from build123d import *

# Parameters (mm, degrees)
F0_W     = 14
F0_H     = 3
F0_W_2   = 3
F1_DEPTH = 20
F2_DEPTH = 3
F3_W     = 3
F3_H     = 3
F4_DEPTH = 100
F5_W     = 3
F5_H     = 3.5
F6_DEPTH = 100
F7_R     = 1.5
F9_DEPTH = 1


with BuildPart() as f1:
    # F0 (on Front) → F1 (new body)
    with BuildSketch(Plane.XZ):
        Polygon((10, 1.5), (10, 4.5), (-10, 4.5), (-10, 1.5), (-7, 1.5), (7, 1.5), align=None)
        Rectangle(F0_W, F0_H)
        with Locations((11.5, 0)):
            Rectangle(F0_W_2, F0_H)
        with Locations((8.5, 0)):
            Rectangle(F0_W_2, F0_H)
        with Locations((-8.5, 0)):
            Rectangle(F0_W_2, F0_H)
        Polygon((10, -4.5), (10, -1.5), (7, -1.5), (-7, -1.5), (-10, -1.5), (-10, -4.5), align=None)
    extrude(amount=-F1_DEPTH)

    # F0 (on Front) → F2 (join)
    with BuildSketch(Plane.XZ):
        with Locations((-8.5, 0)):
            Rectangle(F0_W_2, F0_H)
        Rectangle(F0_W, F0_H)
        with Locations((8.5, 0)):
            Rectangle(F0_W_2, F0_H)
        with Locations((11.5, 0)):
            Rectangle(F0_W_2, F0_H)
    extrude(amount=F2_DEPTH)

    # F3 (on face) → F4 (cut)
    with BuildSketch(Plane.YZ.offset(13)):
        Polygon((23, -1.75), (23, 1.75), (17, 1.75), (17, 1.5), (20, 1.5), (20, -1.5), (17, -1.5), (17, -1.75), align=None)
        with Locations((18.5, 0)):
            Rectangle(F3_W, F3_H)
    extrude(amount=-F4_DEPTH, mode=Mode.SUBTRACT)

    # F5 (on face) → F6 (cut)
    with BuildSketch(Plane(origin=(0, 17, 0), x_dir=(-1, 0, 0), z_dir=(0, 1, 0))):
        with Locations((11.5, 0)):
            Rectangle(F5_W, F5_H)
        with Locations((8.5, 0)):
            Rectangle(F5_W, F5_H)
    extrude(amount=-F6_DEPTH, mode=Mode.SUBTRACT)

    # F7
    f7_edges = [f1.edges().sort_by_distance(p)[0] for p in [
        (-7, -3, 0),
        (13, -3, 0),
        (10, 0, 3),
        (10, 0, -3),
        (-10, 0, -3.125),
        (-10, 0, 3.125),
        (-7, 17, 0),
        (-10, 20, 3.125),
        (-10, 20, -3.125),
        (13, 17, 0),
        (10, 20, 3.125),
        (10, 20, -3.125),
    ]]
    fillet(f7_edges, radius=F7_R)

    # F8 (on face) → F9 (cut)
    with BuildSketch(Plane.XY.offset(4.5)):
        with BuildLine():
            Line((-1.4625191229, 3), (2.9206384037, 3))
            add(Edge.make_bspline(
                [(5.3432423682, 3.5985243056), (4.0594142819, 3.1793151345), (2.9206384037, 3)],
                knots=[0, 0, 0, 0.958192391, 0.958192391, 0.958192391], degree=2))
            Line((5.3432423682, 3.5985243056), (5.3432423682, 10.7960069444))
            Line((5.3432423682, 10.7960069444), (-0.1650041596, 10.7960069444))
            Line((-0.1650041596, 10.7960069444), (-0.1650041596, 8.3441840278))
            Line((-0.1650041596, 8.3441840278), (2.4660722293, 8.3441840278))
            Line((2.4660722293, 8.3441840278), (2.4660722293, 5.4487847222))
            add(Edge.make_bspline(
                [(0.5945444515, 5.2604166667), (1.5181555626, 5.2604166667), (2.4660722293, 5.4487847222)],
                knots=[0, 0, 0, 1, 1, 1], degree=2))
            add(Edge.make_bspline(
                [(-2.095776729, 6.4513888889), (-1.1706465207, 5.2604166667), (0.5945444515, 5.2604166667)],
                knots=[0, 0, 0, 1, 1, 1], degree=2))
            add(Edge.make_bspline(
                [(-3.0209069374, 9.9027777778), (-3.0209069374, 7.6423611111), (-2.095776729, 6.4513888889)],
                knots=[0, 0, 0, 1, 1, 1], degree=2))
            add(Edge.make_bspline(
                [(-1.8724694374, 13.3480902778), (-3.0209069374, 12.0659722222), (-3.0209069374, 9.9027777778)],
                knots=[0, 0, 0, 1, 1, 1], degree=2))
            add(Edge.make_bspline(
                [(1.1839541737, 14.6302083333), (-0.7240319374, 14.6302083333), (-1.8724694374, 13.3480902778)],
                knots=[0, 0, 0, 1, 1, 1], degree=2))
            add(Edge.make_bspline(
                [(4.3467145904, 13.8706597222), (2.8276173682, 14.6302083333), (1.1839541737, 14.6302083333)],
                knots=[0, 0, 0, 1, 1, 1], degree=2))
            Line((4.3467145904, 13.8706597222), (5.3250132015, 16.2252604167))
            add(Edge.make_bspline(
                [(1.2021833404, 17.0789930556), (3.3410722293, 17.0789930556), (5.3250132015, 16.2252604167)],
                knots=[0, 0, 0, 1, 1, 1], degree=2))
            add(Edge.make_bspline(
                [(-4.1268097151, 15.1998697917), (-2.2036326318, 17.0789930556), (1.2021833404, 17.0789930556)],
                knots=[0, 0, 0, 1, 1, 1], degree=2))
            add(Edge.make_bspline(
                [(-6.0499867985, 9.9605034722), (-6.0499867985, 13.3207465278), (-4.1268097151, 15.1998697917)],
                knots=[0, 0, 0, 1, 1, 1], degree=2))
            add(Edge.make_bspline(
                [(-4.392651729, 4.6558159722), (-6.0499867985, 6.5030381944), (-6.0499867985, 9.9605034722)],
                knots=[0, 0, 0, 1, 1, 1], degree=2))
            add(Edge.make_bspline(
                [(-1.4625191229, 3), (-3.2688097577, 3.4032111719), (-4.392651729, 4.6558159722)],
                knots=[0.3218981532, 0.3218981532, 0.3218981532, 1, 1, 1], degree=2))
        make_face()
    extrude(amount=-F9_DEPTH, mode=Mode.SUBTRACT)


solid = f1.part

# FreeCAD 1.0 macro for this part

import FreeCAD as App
import Part
import Sketcher


def edges_at(feature, points):
    """Names of the edges that pass closest to the given points."""
    edges = feature.Shape.Edges
    near = lambda p: min(range(len(edges)), key=lambda i: edges[i].distToShape(Part.Vertex(*p))[0])
    return sorted({f"Edge{near(p) + 1}" for p in points})


def add_polygon(sketch, points):
    """Adds a closed chain of lines whose ends are joined by coincident constraints."""
    first, n = sketch.GeometryCount, len(points)
    for a, b in zip(points, points[1:] + points[:1]):
        sketch.addGeometry(Part.LineSegment(App.Vector(*a, 0), App.Vector(*b, 0)), False)
    for i in range(n):
        sketch.addConstraint(Sketcher.Constraint("Coincident", first + i, 2, first + (i + 1) % n, 1))

doc = App.newDocument("Part")
params = doc.addObject("Spreadsheet::Sheet", "Params")
for row, (alias, value) in enumerate([
    ("sketch1_width", "20 mm"),
    ("sketch1_width2", "3 mm"),
    ("pad1_length", "20 mm"),
    ("sketch2_width", "23 mm"),
    ("sketch2_height", "3 mm"),
    ("pad2_length", "3 mm"),
    ("sketch3_width", "6 mm"),
    ("sketch3_height", "3.5 mm"),
    ("pocket1_length", "100 mm"),
    ("sketch4_width", "6 mm"),
    ("sketch4_height", "3.5 mm"),
    ("pocket2_length", "100 mm"),
    ("fillet_radius", "1.5 mm"),
    ("pocket3_length", "1 mm"),
], start=1):
    params.set(f"A{row}", alias)
    params.set(f"B{row}", "=" + value)
    params.setAlias(f"B{row}", alias)

body = doc.addObject("PartDesign::Body", "Body")

# Sketch on XZ plane
sketch1 = body.newObject("Sketcher::SketchObject", "Sketch")
sketch1.AttachmentSupport = (doc.getObject("XZ_Plane"), [""])
sketch1.MapMode = "FlatFace"
add_polygon(sketch1, [(10, 1.5), (10, 4.5), (-10, 4.5), (-10, -4.5), (10, -4.5), (10, -1.5), (13, -1.5), (13, 1.5)])  # lines 0-7
sketch1.addConstraint([
    Sketcher.Constraint("Vertical", 0),
    Sketcher.Constraint("Horizontal", 1),
    Sketcher.Constraint("Vertical", 2),
    Sketcher.Constraint("Horizontal", 3),
    Sketcher.Constraint("Vertical", 4),
    Sketcher.Constraint("Horizontal", 5),
    Sketcher.Constraint("Vertical", 6),
    Sketcher.Constraint("Horizontal", 7),
    Sketcher.Constraint("Symmetric", 0, 2, 2, 2, -1, 1),
    Sketcher.Constraint("Symmetric", 4, 2, 7, 2, -1),
    Sketcher.Constraint("Equal", 7, 0),
    Sketcher.Constraint("Equal", 4, 6),
    Sketcher.Constraint("DistanceX", 1, 2, 1, 1, 20.0),
    Sketcher.Constraint("DistanceX", 5, 1, 5, 2, 3.0),
])
sketch1.setExpression("Constraints[20]", "Params.sketch1_width")
sketch1.setExpression("Constraints[21]", "Params.sketch1_width2")
pad1 = body.newObject("PartDesign::Pad", "Pad")
pad1.Profile = sketch1
pad1.setExpression("Length", "Params.pad1_length")
pad1.Reversed = True

# Sketch on XZ plane
sketch2 = body.newObject("Sketcher::SketchObject", "Sketch001")
sketch2.AttachmentSupport = (doc.getObject("XZ_Plane"), [""])
sketch2.MapMode = "FlatFace"
add_polygon(sketch2, [(-10, 1.5), (-10, -1.5), (13, -1.5), (13, 1.5)])  # lines 0-3
sketch2.addConstraint([
    Sketcher.Constraint("Vertical", 0),
    Sketcher.Constraint("Horizontal", 1),
    Sketcher.Constraint("Vertical", 2),
    Sketcher.Constraint("Horizontal", 3),
    Sketcher.Constraint("DistanceX", 1, 1, 1, 2, 23.0),
    Sketcher.Constraint("DistanceY", 0, 2, 0, 1, 3.0),
    Sketcher.Constraint("DistanceX", 0, 2, -1, 1, 10.0),
    Sketcher.Constraint("DistanceY", 0, 2, -1, 1, 1.5),
])
sketch2.setExpression("Constraints[8]", "Params.sketch2_width")
sketch2.setExpression("Constraints[9]", "Params.sketch2_height")
pad2 = body.newObject("PartDesign::Pad", "Pad001")
pad2.Profile = sketch2
pad2.setExpression("Length", "Params.pad2_length")

# Sketch on YZ plane
sketch3 = body.newObject("Sketcher::SketchObject", "Sketch002")
sketch3.AttachmentSupport = (doc.getObject("YZ_Plane"), [""])
sketch3.MapMode = "FlatFace"
sketch3.AttachmentOffset = App.Placement(App.Vector(0, 0, 13), App.Rotation())
add_polygon(sketch3, [(23, -1.75), (23, 1.75), (17, 1.75), (17, -1.75)])  # lines 0-3
sketch3.addConstraint([
    Sketcher.Constraint("Vertical", 0),
    Sketcher.Constraint("Horizontal", 1),
    Sketcher.Constraint("Vertical", 2),
    Sketcher.Constraint("Horizontal", 3),
    Sketcher.Constraint("DistanceX", 1, 2, 1, 1, 6.0),
    Sketcher.Constraint("DistanceY", 0, 1, 0, 2, 3.5),
    Sketcher.Constraint("DistanceX", -1, 1, 0, 2, 23.0),
    Sketcher.Constraint("DistanceY", -1, 1, 0, 2, 1.75),
])
sketch3.setExpression("Constraints[8]", "Params.sketch3_width")
sketch3.setExpression("Constraints[9]", "Params.sketch3_height")
pocket1 = body.newObject("PartDesign::Pocket", "Pocket")
pocket1.Profile = sketch3
pocket1.setExpression("Length", "Params.pocket1_length")

# Sketch on XZ plane
sketch4 = body.newObject("Sketcher::SketchObject", "Sketch003")
sketch4.AttachmentSupport = (doc.getObject("XZ_Plane"), [""])
sketch4.MapMode = "FlatFace"
sketch4.AttachmentOffset = App.Placement(App.Vector(0, 0, -17), App.Rotation())
add_polygon(sketch4, [(-13, -1.75), (-13, 1.75), (-7, 1.75), (-7, -1.75)])  # lines 0-3
sketch4.addConstraint([
    Sketcher.Constraint("Vertical", 0),
    Sketcher.Constraint("Horizontal", 1),
    Sketcher.Constraint("Vertical", 2),
    Sketcher.Constraint("Horizontal", 3),
    Sketcher.Constraint("DistanceX", 1, 1, 1, 2, 6.0),
    Sketcher.Constraint("DistanceY", 0, 1, 0, 2, 3.5),
    Sketcher.Constraint("DistanceX", 0, 2, -1, 1, 13.0),
    Sketcher.Constraint("DistanceY", -1, 1, 0, 2, 1.75),
])
sketch4.setExpression("Constraints[8]", "Params.sketch4_width")
sketch4.setExpression("Constraints[9]", "Params.sketch4_height")
pocket2 = body.newObject("PartDesign::Pocket", "Pocket001")
pocket2.Profile = sketch4
pocket2.setExpression("Length", "Params.pocket2_length")
pocket2.Reversed = True
doc.recompute()

fillet = body.newObject("PartDesign::Fillet", "Fillet")
fillet.Base = (pocket2, edges_at(pocket2, [
    (-7, -3, 0),
    (13, -3, 0),
    (10, 0, 3),
    (10, 0, -3),
    (-10, 0, -3.125),
    (-10, 0, 3.125),
    (-7, 17, 0),
    (-10, 20, 3.125),
    (-10, 20, -3.125),
    (13, 17, 0),
    (10, 20, 3.125),
    (10, 20, -3.125),
]))
fillet.setExpression("Radius", "Params.fillet_radius")

# Sketch on XY plane
sketch5 = body.newObject("Sketcher::SketchObject", "Sketch004")
sketch5.AttachmentSupport = (doc.getObject("XY_Plane"), [""])
sketch5.MapMode = "FlatFace"
sketch5.AttachmentOffset = App.Placement(App.Vector(0, 0, 4.5), App.Rotation())
sketch5.addGeometry([
    Part.LineSegment(App.Vector(-1.462519, 3, 0), App.Vector(2.920638, 3, 0)),  # 0
    Part.BSplineCurve([App.Vector(5.343242, 3.598524, 0), App.Vector(4.059414, 3.179315, 0), App.Vector(2.920638, 3, 0)], [3, 3], [0, 0.958192391], False, 2, [1, 1, 1], False),  # 1
    Part.LineSegment(App.Vector(5.343242, 3.598524, 0), App.Vector(5.343242, 10.796007, 0)),  # 2
    Part.LineSegment(App.Vector(5.343242, 10.796007, 0), App.Vector(-0.165004, 10.796007, 0)),  # 3
    Part.LineSegment(App.Vector(-0.165004, 10.796007, 0), App.Vector(-0.165004, 8.344184, 0)),  # 4
    Part.LineSegment(App.Vector(-0.165004, 8.344184, 0), App.Vector(2.466072, 8.344184, 0)),  # 5
    Part.LineSegment(App.Vector(2.466072, 8.344184, 0), App.Vector(2.466072, 5.448785, 0)),  # 6
    Part.BSplineCurve([App.Vector(-2.095777, 6.451389, 0), App.Vector(-1.170647, 5.260417, 0), App.Vector(1.518156, 5.260417, 0), App.Vector(2.466072, 5.448785, 0)], [3, 1, 3], [0, 1, 1.5232358], False, 2, [1, 1, 1, 1], False),  # 7
    Part.BSplineCurve([App.Vector(-1.872469, 13.34809, 0), App.Vector(-3.020907, 12.065972, 0), App.Vector(-3.020907, 7.642361, 0), App.Vector(-2.095777, 6.451389, 0)], [3, 1, 3], [0, 1, 2.04494382], False, 2, [1, 1, 1, 1], False),  # 8
    Part.BSplineCurve([App.Vector(4.346715, 13.87066, 0), App.Vector(2.827617, 14.630208, 0), App.Vector(-0.724032, 14.630208, 0), App.Vector(-1.872469, 13.34809, 0)], [3, 1, 3], [0, 1, 2.160813309], False, 2, [1, 1, 1, 1], False),  # 9
    Part.LineSegment(App.Vector(4.346715, 13.87066, 0), App.Vector(5.325013, 16.22526, 0)),  # 10
    Part.BSplineCurve([App.Vector(-4.12681, 15.19987, 0), App.Vector(-2.203633, 17.078993, 0), App.Vector(3.341072, 17.078993, 0), App.Vector(5.325013, 16.22526, 0)], [3, 1, 3], [0, 1, 1.628010705], False, 2, [1, 1, 1, 1], False),  # 11
    Part.BSplineCurve([App.Vector(-4.392652, 4.655816, 0), App.Vector(-6.049987, 6.503038, 0), App.Vector(-6.049987, 13.320747, 0), App.Vector(-4.12681, 15.19987, 0)], [3, 1, 3], [0, 1, 1.971880492], False, 2, [1, 1, 1, 1], False),  # 12
    Part.BSplineCurve([App.Vector(-1.462519, 3, 0), App.Vector(-3.26881, 3.403211, 0), App.Vector(-4.392652, 4.655816, 0)], [3, 3], [0.321898153, 1], False, 2, [1, 1, 1], False),  # 13
], False)
sketch5.addConstraint([
    Sketcher.Constraint("Block", 1),
    Sketcher.Constraint("Block", 7),
    Sketcher.Constraint("Block", 8),
    Sketcher.Constraint("Block", 9),
    Sketcher.Constraint("Block", 11),
    Sketcher.Constraint("Block", 12),
    Sketcher.Constraint("Block", 13),
    Sketcher.Constraint("Coincident", 0, 2, 1, 2),
    Sketcher.Constraint("Coincident", 1, 1, 2, 1),
    Sketcher.Constraint("Coincident", 2, 2, 3, 1),
    Sketcher.Constraint("Coincident", 3, 2, 4, 1),
    Sketcher.Constraint("Coincident", 4, 2, 5, 1),
    Sketcher.Constraint("Coincident", 5, 2, 6, 1),
    Sketcher.Constraint("Coincident", 6, 2, 7, 2),
    Sketcher.Constraint("Coincident", 9, 1, 10, 1),
    Sketcher.Constraint("Coincident", 10, 2, 11, 2),
    Sketcher.Constraint("Coincident", 13, 1, 0, 1),
    Sketcher.Constraint("Vertical", 2),
    Sketcher.Constraint("Horizontal", 3),
    Sketcher.Constraint("Vertical", 4),
    Sketcher.Constraint("Horizontal", 5),
    Sketcher.Constraint("Vertical", 6),
    Sketcher.Constraint("DistanceY", 6, 2, 6, 1, 2.895399),
    Sketcher.Constraint("DistanceX", 3, 2, 3, 1, 5.508247),
    Sketcher.Constraint("DistanceY", 2, 1, 2, 2, 7.197483),
])
pocket3 = body.newObject("PartDesign::Pocket", "Pocket002")
pocket3.Profile = sketch5
pocket3.setExpression("Length", "Params.pocket3_length")

doc.recompute()
